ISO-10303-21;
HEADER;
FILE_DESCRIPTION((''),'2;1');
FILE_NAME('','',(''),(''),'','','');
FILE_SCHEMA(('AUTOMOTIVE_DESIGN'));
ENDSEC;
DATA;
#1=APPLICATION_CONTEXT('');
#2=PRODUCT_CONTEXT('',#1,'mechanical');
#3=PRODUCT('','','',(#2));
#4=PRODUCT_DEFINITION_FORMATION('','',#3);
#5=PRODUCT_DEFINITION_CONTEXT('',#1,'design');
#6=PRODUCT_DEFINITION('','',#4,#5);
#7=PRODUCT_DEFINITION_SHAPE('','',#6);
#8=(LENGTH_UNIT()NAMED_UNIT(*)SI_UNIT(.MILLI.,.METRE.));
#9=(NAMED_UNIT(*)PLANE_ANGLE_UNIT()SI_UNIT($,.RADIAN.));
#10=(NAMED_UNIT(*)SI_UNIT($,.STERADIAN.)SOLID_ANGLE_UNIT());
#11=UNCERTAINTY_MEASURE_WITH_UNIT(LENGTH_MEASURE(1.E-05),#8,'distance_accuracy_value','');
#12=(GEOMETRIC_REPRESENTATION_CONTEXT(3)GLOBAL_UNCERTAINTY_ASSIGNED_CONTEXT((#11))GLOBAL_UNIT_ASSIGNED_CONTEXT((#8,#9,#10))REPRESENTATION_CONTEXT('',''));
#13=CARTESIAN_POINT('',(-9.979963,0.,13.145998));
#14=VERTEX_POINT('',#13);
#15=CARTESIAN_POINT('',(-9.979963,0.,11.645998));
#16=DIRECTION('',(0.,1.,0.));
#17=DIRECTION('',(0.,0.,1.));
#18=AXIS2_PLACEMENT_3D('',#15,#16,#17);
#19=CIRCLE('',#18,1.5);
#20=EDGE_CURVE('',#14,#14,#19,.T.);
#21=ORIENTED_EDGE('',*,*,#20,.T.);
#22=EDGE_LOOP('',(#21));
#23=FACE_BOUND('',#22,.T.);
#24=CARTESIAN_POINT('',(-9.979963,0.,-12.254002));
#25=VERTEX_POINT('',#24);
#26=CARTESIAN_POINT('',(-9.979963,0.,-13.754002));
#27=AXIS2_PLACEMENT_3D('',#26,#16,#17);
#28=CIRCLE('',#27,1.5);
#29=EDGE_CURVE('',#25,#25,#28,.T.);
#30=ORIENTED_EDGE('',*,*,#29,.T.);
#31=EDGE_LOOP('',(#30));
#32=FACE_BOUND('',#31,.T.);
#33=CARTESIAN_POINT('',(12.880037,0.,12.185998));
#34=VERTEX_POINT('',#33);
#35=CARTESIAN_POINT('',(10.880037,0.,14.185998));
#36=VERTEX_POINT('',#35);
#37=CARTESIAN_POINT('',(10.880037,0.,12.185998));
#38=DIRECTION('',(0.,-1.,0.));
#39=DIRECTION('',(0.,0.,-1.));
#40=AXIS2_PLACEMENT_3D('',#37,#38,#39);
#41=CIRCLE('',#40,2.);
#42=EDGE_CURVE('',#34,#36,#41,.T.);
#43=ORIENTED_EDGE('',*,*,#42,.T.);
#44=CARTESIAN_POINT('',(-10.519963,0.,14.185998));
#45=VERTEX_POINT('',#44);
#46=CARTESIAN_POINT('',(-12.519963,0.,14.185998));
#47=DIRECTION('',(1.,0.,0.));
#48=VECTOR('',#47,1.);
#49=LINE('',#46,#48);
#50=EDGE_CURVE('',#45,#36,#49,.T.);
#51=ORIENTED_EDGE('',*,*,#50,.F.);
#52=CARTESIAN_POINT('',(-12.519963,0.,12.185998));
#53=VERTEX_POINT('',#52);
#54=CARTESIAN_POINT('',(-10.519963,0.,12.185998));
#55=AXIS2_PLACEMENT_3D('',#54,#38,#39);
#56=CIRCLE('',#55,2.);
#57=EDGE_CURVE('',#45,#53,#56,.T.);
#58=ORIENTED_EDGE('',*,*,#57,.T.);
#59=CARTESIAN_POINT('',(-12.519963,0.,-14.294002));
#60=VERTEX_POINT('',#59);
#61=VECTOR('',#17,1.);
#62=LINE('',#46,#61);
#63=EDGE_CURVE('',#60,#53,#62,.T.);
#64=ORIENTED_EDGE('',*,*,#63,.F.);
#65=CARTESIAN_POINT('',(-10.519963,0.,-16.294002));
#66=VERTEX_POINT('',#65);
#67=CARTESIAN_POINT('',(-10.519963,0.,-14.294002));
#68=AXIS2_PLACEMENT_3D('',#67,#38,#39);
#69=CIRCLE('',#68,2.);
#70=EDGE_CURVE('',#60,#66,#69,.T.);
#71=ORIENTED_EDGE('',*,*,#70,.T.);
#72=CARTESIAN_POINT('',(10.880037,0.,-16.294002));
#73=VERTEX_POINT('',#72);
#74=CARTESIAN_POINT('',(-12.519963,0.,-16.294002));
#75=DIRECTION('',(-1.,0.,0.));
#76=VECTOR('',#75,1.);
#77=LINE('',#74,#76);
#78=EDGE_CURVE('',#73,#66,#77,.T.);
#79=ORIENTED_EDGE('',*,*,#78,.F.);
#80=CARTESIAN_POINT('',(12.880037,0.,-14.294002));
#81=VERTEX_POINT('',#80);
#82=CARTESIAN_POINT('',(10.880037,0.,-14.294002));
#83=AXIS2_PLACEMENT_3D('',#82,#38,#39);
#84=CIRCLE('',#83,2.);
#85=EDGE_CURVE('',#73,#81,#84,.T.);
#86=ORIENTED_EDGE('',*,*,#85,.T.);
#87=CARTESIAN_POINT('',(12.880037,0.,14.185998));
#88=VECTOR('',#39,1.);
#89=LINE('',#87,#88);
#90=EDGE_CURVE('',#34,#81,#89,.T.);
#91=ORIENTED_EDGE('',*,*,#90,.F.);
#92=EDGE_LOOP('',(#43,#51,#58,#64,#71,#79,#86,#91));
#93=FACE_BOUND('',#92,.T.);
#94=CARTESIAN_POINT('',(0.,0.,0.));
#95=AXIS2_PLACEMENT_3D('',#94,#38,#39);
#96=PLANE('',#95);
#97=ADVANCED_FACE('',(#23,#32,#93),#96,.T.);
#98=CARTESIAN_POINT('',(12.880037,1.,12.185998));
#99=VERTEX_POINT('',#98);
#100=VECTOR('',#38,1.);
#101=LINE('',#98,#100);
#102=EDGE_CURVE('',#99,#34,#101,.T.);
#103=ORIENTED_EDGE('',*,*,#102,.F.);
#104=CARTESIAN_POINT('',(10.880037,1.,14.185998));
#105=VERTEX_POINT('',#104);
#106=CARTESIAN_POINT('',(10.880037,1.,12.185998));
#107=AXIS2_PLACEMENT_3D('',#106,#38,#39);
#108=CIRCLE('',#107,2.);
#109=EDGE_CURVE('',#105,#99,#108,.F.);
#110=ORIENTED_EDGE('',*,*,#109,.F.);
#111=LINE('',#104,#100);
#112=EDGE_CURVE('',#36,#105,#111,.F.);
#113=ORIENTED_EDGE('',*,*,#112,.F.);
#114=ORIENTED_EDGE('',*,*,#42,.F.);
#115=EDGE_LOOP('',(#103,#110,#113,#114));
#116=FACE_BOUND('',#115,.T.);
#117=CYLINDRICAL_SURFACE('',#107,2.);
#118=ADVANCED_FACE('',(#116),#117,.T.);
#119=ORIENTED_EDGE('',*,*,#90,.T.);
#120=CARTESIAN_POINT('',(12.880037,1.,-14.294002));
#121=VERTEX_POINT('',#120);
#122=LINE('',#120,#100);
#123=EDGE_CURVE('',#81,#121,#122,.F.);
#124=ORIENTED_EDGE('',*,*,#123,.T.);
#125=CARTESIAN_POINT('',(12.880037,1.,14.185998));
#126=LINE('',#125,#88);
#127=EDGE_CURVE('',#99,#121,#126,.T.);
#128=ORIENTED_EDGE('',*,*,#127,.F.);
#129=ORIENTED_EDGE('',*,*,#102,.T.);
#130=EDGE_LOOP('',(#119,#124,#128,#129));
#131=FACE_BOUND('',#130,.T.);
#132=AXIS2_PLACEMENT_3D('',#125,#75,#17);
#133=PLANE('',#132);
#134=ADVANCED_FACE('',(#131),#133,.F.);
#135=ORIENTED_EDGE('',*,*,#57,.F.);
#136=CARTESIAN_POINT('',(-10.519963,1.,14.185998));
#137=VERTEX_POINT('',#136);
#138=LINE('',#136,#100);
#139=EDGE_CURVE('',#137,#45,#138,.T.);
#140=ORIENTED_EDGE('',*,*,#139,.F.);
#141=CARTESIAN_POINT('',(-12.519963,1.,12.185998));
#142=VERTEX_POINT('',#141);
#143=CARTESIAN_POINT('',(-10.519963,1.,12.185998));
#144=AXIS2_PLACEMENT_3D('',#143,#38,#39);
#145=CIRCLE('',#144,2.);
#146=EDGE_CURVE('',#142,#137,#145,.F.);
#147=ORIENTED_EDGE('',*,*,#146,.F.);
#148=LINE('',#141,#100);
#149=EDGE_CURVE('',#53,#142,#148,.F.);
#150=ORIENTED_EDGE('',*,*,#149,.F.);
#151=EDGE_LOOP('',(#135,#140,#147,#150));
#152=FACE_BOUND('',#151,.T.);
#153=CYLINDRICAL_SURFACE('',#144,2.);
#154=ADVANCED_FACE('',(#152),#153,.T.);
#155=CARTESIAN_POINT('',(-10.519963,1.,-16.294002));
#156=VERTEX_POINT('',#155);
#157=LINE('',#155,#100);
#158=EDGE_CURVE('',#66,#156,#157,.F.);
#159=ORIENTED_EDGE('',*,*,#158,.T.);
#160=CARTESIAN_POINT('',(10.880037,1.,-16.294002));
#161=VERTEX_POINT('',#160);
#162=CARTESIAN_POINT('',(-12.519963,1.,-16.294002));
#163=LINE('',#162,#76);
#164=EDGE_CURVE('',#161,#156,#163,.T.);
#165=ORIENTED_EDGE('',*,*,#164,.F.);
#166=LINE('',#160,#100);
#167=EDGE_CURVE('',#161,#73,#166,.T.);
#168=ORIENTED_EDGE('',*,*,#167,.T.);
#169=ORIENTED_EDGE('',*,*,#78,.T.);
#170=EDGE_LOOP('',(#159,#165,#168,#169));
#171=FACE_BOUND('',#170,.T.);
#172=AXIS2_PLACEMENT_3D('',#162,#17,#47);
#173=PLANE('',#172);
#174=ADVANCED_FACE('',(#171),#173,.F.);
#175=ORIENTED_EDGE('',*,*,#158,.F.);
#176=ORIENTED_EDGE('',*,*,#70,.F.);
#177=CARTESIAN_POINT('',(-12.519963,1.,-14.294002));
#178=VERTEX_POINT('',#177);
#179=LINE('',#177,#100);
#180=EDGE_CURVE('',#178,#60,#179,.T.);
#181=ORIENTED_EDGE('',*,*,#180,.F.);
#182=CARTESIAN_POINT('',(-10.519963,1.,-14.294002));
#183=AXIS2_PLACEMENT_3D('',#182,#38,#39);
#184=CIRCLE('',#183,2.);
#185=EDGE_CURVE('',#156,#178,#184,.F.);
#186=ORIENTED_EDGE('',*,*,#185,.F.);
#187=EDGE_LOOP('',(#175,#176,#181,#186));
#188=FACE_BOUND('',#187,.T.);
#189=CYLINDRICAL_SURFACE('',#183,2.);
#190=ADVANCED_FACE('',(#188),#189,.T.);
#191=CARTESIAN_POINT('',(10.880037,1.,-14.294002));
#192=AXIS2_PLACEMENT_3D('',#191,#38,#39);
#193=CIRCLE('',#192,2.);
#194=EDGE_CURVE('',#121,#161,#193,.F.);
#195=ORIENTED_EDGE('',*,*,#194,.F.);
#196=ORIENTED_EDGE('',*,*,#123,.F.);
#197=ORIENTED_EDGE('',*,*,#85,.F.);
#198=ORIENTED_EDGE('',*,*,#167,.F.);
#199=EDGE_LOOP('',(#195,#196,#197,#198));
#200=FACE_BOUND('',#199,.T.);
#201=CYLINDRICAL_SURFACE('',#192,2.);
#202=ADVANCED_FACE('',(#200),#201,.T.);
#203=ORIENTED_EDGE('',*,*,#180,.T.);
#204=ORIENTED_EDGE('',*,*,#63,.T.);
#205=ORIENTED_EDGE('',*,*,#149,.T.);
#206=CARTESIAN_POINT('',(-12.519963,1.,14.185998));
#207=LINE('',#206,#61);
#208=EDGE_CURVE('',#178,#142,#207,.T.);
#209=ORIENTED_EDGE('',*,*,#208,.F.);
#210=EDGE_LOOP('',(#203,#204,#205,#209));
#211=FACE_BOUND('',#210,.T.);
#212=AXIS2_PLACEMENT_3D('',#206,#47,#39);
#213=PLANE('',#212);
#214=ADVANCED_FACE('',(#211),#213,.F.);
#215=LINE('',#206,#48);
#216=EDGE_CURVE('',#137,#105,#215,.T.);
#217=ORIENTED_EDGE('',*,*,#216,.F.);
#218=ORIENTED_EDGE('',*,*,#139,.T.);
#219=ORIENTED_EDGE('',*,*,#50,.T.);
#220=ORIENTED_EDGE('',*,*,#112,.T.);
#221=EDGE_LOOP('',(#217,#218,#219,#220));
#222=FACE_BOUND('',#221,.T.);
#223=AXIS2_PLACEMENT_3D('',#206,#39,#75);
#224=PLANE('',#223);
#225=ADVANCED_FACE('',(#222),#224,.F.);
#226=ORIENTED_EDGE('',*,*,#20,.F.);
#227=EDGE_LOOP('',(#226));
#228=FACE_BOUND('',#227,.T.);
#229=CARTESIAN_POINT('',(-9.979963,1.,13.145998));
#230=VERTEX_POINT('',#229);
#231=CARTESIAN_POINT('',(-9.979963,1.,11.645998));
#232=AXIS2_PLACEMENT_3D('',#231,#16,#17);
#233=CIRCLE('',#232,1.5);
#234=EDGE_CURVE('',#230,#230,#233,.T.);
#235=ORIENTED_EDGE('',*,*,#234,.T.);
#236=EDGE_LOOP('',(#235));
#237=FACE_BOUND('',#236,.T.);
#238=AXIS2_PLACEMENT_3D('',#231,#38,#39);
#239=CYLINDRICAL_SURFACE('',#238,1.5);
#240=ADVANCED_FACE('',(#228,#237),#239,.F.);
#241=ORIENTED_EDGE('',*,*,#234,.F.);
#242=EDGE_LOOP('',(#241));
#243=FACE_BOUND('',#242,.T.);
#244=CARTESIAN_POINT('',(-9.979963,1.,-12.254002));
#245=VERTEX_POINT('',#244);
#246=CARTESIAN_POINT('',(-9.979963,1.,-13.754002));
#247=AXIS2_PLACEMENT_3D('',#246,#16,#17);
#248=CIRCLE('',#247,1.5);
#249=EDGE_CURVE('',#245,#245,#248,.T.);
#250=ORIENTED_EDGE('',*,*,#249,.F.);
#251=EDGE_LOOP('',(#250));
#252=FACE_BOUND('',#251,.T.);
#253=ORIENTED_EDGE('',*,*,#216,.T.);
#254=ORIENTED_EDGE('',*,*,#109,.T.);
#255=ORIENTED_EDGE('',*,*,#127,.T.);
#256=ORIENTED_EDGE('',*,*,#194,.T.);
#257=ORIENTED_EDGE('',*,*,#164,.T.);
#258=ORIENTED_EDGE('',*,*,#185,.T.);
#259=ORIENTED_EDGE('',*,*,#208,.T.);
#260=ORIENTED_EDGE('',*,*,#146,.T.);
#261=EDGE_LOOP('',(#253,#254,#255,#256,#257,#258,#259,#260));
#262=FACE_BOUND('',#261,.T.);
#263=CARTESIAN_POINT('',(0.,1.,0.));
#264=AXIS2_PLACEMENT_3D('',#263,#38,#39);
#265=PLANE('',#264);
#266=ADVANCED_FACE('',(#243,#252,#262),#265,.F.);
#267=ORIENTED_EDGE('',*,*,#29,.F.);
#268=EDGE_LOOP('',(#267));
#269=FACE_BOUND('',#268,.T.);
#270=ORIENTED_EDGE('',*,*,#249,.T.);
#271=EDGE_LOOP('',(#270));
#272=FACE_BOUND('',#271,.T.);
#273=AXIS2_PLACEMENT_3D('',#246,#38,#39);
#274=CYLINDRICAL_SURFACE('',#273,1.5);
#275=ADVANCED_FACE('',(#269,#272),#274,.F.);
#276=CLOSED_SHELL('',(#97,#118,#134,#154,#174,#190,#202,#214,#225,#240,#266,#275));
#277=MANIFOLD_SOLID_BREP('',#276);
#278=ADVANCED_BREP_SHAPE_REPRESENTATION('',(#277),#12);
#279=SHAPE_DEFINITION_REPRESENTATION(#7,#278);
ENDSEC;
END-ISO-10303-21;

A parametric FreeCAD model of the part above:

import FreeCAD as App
import Part
import Sketcher

V = App.Vector


def edges_at(feature, points):
    """Names of the edges that pass closest to the given points."""
    edges = feature.Shape.Edges
    near = lambda p: min(range(len(edges)), key=lambda i: edges[i].distToShape(Part.Vertex(*p))[0])
    return sorted({f"Edge{near(p) + 1}" for p in points})

doc = App.newDocument("Part")
body = doc.addObject("PartDesign::Body", "Body")

# Sketch on XZ plane
sketch1 = body.newObject("Sketcher::SketchObject", "Sketch")
sketch1.AttachmentSupport = (doc.getObject("XZ_Plane"), [""])
sketch1.MapMode = "FlatFace"
sketch1.addGeometry([
    Part.LineSegment(V(-12.519963, -16.294002, 0), V(-12.519963, 14.185998, 0)),  # 0
    Part.LineSegment(V(-12.519963, 14.185998, 0), V(12.880037, 14.185998, 0)),  # 1
    Part.LineSegment(V(12.880037, 14.185998, 0), V(12.880037, -16.294002, 0)),  # 2
    Part.LineSegment(V(12.880037, -16.294002, 0), V(-12.519963, -16.294002, 0)),  # 3
    Part.Circle(V(-9.979963, 11.645998, 0), V(0, 0, 1), 1.5),  # 4
    Part.Circle(V(-9.979963, -13.754002, 0), V(0, 0, 1), 1.5),  # 5
], False)
sketch1.addConstraint([
    Sketcher.Constraint("Coincident", 0, 2, 1, 1),
    Sketcher.Constraint("Coincident", 1, 2, 2, 1),
    Sketcher.Constraint("Coincident", 2, 2, 3, 1),
    Sketcher.Constraint("Coincident", 3, 2, 0, 1),
    Sketcher.Constraint("Vertical", 0),
    Sketcher.Constraint("Horizontal", 1),
    Sketcher.Constraint("Vertical", 2),
    Sketcher.Constraint("Horizontal", 3),
    Sketcher.Constraint("Equal", 4, 5),
    Sketcher.Constraint("Vertical", 4, 3, 5, 3),
    Sketcher.Constraint("Diameter", 4, 3.0),
    Sketcher.Constraint("DistanceX", 1, 1, 1, 2, 25.4),
    Sketcher.Constraint("DistanceY", 0, 1, 0, 2, 30.48),
    Sketcher.Constraint("DistanceY", 5, 3, 4, 3, 25.4),
    Sketcher.Constraint("DistanceX", 0, 2, 4, 3, 2.54),
    Sketcher.Constraint("DistanceY", 4, 3, 0, 2, 2.54),
    Sketcher.Constraint("DistanceY", -1, 1, 4, 3, 11.645998),
    Sketcher.Constraint("DistanceX", 4, 3, -1, 1, 9.979963),
])
pad1 = body.newObject("PartDesign::Pad", "Pad")
pad1.Profile = sketch1
pad1.Length = 1
pad1.Reversed = True
doc.recompute()

fillet = body.newObject("PartDesign::Fillet", "Fillet")
fillet.Base = (pad1, edges_at(pad1, [(-12.52, 0.5, 14.186)]))
fillet.Radius = 2
doc.recompute()

fillet2 = body.newObject("PartDesign::Fillet", "Fillet001")
fillet2.Base = (fillet, edges_at(fillet, [(12.88, 0.5, 14.186)]))
fillet2.Radius = 2
doc.recompute()

fillet3 = body.newObject("PartDesign::Fillet", "Fillet002")
fillet3.Base = (fillet2, edges_at(fillet2, [(12.88, 0.5, -16.294)]))
fillet3.Radius = 2
doc.recompute()

fillet4 = body.newObject("PartDesign::Fillet", "Fillet003")
fillet4.Base = (fillet3, edges_at(fillet3, [(-12.52, 0.5, -16.294)]))
fillet4.Radius = 2

doc.recompute()
